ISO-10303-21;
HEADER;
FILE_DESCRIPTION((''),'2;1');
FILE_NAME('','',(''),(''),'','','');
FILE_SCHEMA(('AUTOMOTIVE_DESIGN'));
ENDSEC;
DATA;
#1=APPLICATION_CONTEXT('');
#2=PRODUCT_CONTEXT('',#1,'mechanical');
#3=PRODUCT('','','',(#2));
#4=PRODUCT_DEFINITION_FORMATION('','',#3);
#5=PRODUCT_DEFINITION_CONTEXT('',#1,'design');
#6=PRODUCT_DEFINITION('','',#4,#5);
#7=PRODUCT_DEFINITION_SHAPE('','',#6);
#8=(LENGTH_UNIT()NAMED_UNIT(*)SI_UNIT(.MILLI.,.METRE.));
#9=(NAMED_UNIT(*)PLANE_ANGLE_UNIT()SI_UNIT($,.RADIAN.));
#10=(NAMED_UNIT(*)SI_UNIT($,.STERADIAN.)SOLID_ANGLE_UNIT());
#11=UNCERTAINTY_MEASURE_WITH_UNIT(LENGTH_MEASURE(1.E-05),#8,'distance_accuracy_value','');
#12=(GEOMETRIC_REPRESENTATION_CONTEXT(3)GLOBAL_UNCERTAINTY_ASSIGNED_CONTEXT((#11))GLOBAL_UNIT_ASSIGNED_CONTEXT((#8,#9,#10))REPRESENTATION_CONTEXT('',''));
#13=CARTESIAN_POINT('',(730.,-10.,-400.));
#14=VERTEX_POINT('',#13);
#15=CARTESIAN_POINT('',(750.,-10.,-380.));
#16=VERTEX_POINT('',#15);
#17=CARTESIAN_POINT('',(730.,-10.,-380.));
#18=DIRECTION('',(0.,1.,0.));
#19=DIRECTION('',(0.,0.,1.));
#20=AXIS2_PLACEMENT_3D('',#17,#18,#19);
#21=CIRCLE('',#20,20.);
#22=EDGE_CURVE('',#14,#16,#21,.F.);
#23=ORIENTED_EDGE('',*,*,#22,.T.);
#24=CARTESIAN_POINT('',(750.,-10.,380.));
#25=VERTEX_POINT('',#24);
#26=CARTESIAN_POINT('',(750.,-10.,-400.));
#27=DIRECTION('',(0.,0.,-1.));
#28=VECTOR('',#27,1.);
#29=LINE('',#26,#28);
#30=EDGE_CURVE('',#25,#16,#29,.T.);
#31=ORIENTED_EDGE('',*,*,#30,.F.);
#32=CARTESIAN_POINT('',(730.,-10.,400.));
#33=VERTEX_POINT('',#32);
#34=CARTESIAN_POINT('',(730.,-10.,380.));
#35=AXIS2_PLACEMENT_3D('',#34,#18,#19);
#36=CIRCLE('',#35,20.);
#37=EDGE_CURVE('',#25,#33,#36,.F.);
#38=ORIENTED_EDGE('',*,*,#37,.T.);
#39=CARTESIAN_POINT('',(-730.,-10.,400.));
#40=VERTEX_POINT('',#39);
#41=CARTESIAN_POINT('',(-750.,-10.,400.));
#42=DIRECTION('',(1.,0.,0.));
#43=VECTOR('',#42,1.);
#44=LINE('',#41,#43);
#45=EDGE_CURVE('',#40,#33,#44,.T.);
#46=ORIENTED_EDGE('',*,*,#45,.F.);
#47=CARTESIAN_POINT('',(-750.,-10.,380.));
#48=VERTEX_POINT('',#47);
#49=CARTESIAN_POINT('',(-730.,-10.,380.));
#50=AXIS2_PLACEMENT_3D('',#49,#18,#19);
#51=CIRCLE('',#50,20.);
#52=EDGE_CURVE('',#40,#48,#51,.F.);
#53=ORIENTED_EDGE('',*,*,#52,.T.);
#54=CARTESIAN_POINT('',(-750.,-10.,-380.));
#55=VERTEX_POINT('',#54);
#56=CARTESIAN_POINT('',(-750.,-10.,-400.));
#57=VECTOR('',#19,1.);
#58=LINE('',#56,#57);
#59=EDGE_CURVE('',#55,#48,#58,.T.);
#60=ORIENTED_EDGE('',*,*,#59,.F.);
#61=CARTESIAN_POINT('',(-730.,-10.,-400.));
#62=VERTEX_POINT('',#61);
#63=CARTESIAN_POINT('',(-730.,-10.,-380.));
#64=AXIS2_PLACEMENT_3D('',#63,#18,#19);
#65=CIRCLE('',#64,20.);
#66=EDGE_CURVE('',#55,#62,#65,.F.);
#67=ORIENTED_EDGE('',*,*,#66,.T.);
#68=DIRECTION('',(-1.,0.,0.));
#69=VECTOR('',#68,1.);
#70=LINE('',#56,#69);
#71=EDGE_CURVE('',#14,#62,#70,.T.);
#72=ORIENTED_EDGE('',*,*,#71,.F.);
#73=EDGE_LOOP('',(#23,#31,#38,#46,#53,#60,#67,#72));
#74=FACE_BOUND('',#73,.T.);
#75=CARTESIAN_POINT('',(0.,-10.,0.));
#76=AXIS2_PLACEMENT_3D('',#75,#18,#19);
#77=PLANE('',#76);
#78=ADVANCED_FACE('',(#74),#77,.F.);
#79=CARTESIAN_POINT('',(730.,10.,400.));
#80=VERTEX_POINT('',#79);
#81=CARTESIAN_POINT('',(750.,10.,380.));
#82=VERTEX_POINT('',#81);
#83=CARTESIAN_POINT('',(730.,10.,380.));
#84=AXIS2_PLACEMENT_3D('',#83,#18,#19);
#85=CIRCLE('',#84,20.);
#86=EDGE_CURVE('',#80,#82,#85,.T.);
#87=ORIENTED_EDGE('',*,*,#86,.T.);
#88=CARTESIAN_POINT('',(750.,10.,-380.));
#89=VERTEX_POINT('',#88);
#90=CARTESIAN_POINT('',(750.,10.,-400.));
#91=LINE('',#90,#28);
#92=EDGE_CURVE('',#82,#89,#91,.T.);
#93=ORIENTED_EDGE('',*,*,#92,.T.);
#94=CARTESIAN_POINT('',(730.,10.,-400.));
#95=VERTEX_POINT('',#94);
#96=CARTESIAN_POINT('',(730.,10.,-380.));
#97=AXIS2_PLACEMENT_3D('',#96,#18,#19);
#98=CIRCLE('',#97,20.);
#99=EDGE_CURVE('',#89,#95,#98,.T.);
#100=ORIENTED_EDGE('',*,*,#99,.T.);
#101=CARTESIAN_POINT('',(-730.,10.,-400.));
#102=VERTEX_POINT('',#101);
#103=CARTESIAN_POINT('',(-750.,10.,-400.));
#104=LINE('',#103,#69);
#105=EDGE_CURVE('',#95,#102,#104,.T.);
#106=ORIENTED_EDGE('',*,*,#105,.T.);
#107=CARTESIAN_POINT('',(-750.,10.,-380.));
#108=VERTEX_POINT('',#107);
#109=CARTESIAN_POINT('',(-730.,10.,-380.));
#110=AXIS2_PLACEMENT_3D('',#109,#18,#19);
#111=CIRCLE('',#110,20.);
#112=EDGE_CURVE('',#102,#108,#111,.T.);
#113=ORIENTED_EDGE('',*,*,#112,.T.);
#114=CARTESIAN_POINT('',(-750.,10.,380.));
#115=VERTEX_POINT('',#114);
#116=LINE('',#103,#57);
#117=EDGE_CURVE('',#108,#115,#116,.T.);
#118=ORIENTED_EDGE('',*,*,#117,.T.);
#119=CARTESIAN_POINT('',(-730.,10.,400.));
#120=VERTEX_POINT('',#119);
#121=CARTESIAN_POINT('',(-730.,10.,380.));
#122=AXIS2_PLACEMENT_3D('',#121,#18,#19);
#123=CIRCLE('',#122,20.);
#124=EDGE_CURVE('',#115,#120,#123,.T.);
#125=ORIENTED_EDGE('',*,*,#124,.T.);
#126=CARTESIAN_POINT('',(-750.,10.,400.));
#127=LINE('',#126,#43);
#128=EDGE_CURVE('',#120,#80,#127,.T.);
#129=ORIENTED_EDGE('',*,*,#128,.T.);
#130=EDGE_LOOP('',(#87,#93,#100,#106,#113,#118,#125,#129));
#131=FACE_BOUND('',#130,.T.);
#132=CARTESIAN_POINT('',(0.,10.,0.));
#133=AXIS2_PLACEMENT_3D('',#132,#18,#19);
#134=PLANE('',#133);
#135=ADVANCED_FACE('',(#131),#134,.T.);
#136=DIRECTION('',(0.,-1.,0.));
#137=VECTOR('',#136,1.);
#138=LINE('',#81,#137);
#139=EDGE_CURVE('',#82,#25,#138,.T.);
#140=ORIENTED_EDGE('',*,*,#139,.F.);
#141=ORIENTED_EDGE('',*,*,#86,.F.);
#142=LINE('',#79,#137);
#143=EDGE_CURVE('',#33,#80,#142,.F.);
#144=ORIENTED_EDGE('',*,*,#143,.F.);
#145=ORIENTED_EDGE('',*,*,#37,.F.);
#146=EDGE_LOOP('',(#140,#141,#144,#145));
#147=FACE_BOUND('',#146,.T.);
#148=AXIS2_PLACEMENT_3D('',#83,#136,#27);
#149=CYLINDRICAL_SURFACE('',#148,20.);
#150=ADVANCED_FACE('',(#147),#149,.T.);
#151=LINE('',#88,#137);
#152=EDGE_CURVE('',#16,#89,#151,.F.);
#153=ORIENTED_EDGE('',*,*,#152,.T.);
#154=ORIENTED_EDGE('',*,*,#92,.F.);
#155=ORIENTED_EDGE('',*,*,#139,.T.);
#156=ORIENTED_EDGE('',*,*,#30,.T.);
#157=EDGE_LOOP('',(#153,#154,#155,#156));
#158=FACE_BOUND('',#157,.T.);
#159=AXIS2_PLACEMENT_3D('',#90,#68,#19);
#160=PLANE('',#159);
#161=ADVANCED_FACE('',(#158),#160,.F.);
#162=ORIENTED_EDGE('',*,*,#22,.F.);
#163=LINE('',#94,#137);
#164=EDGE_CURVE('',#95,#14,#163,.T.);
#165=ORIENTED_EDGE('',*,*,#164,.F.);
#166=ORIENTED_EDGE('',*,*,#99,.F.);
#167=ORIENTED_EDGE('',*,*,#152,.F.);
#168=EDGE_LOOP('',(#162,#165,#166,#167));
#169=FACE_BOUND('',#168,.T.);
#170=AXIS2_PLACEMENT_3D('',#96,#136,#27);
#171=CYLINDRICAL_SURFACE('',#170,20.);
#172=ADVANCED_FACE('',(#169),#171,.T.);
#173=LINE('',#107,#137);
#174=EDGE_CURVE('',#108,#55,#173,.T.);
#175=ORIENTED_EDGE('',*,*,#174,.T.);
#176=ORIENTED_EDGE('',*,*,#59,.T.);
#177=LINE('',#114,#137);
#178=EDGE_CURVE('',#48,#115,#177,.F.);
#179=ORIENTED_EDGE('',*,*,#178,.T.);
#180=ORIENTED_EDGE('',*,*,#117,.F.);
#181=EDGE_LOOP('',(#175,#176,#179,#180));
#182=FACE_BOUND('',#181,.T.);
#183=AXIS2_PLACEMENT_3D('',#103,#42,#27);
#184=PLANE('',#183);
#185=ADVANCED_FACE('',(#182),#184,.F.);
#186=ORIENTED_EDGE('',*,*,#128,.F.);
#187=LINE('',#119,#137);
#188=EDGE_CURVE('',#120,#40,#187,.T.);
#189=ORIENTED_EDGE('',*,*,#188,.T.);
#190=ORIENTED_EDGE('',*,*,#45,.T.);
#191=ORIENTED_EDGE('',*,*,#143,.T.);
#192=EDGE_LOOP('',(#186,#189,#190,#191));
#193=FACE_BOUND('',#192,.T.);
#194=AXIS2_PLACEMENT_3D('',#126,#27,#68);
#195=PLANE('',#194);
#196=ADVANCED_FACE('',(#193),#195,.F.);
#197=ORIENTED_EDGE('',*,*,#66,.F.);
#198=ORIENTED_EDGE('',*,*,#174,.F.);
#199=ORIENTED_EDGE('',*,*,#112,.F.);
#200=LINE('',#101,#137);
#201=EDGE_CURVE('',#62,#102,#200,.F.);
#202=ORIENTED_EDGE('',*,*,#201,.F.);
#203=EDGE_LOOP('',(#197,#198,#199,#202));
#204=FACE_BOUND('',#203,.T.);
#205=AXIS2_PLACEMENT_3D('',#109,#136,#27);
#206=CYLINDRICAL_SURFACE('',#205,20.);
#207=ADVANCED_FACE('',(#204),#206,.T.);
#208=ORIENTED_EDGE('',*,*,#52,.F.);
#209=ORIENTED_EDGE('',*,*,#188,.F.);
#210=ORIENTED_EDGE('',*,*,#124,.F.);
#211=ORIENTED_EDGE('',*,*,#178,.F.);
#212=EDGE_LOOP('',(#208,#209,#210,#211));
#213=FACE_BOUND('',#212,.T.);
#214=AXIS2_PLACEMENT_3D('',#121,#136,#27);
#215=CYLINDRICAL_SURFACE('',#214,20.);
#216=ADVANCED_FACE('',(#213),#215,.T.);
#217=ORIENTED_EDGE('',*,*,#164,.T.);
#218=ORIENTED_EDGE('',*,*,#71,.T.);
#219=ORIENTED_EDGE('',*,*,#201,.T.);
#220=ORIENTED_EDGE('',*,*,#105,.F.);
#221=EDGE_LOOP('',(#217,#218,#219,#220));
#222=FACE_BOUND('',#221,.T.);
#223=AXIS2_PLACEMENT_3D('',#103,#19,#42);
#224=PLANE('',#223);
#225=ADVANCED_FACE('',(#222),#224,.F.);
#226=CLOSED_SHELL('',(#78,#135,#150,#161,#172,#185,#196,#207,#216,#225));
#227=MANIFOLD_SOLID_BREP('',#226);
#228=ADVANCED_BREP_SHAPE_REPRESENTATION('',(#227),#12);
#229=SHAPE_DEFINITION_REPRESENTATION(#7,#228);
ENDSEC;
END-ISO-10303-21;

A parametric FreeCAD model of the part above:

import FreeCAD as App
import Part
import Sketcher
from FreeCAD import Vector
Q = App.Units.Quantity


def edges_at(feature, points):
    """Names of the edges that pass closest to the given points."""
    edges = feature.Shape.Edges
    near = lambda p: min(range(len(edges)), key=lambda i: edges[i].distToShape(Part.Vertex(*p))[0])
    return sorted({f"Edge{near(p) + 1}" for p in points})


def add_polygon(sketch, points):
    """Adds a closed chain of lines whose ends are joined by coincident constraints."""
    first, n = sketch.GeometryCount, len(points)
    for a, b in zip(points, points[1:] + points[:1]):
        sketch.addGeometry(Part.LineSegment(App.Vector(*a, 0), App.Vector(*b, 0)), False)
    for i in range(n):
        sketch.addConstraint(Sketcher.Constraint("Coincident", first + i, 2, first + (i + 1) % n, 1))

doc = App.newDocument("Part")
body = doc.addObject("PartDesign::Body", "Body")

sketch1 = body.newObject("Sketcher::SketchObject", "Sketch")
sketch1.AttachmentSupport = (doc.getObject("XZ_Plane"), [""])
sketch1.MapMode = "FlatFace"
add_polygon(sketch1, [(-750, -400), (-750, 400), (750, 400), (750, -400)])
sketch1.addConstraint(Sketcher.Constraint("Vertical", 0))
sketch1.addConstraint(Sketcher.Constraint("Horizontal", 1))
sketch1.addConstraint(Sketcher.Constraint("Vertical", 2))
sketch1.addConstraint(Sketcher.Constraint("Horizontal", 3))
sketch1.addConstraint(Sketcher.Constraint("Symmetric", 0, 2, 2, 2, -1, 1))
sketch1.addConstraint(Sketcher.Constraint("DistanceX", 1, 1, 1, 2, Q("1500 mm")))
sketch1.addConstraint(Sketcher.Constraint("DistanceY", 0, 1, 0, 2, Q("800 mm")))
pad1 = body.newObject("PartDesign::Pad", "Pad")
pad1.Profile = sketch1
pad1.Length = 20
pad1.Midplane = True
doc.recompute()

fillet = body.newObject("PartDesign::Fillet", "Fillet")
fillet.Base = (pad1, edges_at(pad1, [
    (750, 0, 400),
    (-750, 0, 400),
    (-750, 0, -400),
    (750, 0, -400),
]))
fillet.Radius = 20

doc.recompute()
